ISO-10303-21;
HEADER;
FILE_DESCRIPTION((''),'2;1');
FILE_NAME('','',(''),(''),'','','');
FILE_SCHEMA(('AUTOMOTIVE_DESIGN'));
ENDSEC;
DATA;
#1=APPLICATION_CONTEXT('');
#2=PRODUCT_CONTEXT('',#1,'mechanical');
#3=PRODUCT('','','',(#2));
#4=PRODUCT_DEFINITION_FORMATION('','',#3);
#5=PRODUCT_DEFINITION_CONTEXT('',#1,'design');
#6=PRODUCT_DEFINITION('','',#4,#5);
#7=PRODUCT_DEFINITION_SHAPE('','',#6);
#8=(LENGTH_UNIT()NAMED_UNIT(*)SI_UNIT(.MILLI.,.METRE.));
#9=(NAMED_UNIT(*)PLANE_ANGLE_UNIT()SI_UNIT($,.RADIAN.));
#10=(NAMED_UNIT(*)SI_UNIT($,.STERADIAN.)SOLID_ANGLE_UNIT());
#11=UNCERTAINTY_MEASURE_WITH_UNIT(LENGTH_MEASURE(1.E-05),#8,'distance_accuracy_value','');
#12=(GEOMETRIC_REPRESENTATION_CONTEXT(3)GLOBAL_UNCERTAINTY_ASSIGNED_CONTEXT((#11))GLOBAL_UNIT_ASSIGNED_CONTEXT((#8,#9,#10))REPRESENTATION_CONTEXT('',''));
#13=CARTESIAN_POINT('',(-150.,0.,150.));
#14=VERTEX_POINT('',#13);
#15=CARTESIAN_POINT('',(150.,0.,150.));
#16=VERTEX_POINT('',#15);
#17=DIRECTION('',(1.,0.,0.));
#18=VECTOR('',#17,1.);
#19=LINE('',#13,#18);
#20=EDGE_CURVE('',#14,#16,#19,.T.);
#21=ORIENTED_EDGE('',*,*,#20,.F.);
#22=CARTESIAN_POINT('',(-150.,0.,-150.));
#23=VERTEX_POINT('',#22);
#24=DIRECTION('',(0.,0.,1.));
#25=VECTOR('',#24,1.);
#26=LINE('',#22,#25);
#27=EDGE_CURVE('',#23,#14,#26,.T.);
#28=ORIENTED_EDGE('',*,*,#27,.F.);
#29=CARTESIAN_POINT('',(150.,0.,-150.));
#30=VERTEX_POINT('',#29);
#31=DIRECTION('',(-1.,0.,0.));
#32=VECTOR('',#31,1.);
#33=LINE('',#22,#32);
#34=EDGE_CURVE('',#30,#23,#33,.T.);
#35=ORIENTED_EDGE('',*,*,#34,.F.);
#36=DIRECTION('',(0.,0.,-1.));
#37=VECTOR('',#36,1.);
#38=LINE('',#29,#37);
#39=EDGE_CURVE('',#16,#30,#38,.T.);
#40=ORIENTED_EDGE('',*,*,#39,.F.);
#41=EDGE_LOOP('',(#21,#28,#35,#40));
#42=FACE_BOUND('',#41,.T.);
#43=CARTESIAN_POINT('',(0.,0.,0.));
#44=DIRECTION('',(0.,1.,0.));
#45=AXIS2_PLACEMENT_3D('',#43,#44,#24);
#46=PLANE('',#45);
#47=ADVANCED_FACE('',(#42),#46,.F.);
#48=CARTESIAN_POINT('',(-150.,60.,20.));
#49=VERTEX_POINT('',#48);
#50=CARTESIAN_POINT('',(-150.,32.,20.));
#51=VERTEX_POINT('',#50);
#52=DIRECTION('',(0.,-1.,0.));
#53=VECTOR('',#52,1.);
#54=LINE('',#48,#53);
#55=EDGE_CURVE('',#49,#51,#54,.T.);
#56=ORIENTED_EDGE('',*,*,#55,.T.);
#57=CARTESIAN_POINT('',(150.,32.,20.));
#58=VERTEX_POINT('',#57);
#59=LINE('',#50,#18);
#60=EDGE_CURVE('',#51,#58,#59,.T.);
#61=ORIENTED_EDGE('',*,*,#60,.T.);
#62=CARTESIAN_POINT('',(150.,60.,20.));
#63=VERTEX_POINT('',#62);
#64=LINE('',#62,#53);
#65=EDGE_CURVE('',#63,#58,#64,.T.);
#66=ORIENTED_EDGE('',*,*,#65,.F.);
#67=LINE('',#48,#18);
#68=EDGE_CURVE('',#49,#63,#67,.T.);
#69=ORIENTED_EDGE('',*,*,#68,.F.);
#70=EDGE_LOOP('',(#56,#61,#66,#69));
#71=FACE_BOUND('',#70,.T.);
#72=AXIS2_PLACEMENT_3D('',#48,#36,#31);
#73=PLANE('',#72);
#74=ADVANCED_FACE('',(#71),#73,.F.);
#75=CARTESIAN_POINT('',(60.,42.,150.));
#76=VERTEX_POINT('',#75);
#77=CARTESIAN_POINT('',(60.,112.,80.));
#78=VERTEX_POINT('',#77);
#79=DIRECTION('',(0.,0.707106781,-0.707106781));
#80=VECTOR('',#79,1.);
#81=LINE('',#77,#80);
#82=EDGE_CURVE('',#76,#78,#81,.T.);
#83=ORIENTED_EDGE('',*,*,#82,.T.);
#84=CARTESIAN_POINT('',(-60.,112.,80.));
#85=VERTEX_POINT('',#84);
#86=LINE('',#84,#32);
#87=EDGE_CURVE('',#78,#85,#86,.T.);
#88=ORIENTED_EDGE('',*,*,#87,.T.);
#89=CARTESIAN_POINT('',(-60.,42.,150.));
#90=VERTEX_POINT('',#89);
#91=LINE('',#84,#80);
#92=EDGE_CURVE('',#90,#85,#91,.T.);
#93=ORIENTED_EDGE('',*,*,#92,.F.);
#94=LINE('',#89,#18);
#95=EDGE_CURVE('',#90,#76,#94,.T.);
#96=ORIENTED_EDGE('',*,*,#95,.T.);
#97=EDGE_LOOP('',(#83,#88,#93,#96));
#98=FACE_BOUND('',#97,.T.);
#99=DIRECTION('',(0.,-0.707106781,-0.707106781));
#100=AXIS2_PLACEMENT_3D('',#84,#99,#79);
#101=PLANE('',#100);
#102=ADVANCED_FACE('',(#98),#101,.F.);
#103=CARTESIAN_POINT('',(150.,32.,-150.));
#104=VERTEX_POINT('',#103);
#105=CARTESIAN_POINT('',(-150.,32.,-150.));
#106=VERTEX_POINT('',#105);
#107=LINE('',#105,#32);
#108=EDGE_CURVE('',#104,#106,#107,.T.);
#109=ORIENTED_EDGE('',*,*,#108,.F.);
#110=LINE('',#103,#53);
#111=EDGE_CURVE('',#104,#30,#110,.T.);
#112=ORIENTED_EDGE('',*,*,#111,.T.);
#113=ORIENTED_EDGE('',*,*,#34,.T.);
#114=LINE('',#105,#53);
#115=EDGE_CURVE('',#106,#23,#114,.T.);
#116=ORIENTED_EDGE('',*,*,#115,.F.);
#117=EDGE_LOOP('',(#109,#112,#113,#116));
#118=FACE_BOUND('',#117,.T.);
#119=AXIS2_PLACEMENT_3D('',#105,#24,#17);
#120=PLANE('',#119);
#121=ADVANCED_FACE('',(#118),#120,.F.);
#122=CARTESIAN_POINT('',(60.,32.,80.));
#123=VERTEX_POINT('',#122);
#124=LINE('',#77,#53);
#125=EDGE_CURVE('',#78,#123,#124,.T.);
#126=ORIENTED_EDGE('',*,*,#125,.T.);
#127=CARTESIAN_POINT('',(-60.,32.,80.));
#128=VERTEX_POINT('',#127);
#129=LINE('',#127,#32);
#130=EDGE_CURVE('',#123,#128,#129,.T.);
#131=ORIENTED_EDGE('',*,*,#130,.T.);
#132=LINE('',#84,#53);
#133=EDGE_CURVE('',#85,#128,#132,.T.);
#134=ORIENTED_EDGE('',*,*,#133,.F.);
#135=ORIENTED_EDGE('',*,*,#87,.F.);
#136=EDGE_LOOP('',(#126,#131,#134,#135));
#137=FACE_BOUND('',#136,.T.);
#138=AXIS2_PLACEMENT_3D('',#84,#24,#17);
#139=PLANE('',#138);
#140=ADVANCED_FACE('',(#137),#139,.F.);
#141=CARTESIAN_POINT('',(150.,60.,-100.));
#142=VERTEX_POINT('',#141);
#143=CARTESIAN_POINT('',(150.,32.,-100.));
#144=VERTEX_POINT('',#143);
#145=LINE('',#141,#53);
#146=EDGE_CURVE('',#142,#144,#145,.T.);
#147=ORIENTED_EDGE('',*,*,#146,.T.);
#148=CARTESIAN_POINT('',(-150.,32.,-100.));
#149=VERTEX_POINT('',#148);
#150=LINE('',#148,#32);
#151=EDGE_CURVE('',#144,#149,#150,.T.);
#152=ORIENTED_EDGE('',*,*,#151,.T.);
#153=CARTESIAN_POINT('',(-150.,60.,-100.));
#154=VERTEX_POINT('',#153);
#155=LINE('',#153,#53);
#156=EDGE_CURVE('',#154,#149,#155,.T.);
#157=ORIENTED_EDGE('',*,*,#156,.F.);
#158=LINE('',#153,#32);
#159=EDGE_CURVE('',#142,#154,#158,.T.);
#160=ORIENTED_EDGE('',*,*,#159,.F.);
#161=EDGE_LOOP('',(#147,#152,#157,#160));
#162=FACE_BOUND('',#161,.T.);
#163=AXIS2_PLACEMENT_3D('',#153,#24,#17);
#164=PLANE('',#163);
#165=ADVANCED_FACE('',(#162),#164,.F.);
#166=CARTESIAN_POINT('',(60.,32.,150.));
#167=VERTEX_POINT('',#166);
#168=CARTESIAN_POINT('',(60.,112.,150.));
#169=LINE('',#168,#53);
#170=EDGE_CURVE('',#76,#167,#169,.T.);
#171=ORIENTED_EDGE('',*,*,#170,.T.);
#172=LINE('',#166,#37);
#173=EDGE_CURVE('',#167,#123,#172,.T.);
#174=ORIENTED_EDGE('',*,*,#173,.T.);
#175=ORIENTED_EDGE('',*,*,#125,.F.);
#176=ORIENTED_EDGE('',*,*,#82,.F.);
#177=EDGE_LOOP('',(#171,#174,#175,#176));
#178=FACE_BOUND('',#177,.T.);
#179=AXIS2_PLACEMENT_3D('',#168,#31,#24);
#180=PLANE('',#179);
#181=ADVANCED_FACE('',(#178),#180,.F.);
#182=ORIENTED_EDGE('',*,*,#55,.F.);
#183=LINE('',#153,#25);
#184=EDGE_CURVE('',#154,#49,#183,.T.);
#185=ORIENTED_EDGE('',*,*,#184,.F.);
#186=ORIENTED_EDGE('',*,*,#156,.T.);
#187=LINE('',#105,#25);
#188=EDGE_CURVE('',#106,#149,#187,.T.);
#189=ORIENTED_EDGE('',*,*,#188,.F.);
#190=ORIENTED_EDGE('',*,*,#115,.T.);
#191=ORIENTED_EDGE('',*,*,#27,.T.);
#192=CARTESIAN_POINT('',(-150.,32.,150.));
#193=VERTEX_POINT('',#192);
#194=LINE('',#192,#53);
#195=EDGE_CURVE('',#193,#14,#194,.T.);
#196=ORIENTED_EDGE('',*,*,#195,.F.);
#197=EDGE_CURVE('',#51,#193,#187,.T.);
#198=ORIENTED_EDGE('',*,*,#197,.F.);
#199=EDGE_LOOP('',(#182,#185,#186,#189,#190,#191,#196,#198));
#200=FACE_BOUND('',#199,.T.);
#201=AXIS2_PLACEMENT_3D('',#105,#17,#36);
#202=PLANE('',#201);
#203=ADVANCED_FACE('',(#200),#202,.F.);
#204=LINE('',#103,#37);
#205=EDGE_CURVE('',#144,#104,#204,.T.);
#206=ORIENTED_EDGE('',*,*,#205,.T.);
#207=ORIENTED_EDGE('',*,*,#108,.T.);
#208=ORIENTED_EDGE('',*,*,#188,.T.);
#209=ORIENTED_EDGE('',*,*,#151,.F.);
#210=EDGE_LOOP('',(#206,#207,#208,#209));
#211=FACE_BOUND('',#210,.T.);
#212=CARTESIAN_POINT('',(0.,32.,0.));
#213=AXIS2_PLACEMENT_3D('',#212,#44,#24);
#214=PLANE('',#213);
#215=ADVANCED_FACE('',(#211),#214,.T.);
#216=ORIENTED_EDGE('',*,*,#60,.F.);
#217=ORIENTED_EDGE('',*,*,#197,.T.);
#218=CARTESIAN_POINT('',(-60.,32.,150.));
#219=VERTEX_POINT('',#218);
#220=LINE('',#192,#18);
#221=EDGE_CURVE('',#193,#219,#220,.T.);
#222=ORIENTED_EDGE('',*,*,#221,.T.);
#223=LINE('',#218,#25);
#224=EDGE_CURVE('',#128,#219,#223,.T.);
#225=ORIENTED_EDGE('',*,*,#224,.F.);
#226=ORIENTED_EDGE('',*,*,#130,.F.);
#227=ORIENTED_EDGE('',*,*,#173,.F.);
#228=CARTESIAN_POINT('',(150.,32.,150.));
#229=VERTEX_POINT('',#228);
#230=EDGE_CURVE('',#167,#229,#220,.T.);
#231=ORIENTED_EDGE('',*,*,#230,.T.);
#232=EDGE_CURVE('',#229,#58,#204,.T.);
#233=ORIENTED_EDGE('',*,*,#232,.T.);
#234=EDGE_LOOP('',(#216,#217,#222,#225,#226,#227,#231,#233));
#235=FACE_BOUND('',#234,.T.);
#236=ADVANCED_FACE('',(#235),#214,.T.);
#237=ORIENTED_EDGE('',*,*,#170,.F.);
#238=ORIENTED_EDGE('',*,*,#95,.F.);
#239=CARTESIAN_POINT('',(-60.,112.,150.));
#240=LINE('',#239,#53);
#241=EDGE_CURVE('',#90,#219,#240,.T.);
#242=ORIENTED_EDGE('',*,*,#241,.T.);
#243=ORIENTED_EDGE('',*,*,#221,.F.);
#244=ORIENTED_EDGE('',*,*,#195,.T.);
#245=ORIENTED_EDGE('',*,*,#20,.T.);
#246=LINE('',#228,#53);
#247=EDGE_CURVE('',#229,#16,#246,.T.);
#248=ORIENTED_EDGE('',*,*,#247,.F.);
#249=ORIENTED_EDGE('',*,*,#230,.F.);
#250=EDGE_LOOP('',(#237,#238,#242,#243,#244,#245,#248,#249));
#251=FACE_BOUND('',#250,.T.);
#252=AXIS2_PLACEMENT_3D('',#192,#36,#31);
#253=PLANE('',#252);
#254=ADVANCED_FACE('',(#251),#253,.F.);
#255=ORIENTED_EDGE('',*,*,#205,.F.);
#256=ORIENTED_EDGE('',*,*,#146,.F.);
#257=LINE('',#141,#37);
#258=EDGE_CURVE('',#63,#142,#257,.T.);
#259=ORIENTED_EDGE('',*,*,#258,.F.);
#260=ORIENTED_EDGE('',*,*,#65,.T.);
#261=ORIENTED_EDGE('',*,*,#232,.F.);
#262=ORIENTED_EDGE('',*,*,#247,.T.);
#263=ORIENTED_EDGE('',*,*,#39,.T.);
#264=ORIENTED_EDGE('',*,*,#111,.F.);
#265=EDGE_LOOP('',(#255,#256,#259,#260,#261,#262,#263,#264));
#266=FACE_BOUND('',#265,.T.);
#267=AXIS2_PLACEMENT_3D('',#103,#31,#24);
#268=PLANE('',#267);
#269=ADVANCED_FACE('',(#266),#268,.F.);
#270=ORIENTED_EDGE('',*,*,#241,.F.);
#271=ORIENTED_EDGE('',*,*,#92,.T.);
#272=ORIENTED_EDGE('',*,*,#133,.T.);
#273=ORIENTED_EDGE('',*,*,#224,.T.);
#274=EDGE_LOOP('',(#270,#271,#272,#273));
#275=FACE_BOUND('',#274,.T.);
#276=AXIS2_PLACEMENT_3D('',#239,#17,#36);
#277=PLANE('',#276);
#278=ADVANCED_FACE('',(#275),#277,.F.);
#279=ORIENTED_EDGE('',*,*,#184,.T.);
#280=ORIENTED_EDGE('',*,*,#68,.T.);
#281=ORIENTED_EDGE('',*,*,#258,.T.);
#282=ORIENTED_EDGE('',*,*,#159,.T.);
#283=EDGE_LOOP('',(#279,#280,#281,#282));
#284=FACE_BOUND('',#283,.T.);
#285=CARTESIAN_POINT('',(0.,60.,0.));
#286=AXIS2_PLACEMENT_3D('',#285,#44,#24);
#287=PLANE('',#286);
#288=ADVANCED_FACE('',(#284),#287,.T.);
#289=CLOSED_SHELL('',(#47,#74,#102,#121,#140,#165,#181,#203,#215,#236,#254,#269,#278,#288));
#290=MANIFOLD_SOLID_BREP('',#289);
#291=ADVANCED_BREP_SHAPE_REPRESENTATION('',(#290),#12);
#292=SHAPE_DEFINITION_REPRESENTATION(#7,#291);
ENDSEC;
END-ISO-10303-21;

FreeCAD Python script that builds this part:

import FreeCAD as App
import Part
import Sketcher


def add_polygon(sketch, points):
    """Adds a closed chain of lines whose ends are joined by coincident constraints."""
    first, n = sketch.GeometryCount, len(points)
    for a, b in zip(points, points[1:] + points[:1]):
        sketch.addGeometry(Part.LineSegment(App.Vector(*a, 0), App.Vector(*b, 0)), False)
    for i in range(n):
        sketch.addConstraint(Sketcher.Constraint("Coincident", first + i, 2, first + (i + 1) % n, 1))

doc = App.newDocument("Part")
params = doc.addObject("Spreadsheet::Sheet", "Params")
for row, (alias, value) in enumerate([
    ("sketch1_width", "300 mm"),
    ("pad1_length", "32 mm"),
    ("sketch2_width", "300 mm"),
    ("sketch2_height", "120 mm"),
    ("pad2_length", "28 mm"),
    ("sketch3_width", "120 mm"),
    ("sketch3_height", "70 mm"),
    ("pad3_length", "80 mm"),
    ("sketch4_width", "70 mm"),
    ("pocket1_length", "120 mm"),
], start=1):
    params.set(f"A{row}", alias)
    params.set(f"B{row}", "=" + value)
    params.setAlias(f"B{row}", alias)

body = doc.addObject("PartDesign::Body", "Body")

sketch1 = body.newObject("Sketcher::SketchObject", "Sketch")
sketch1.AttachmentSupport = (doc.getObject("XZ_Plane"), [""])
sketch1.MapMode = "FlatFace"
add_polygon(sketch1, [(-150, -150), (-150, 150), (150, 150), (150, -150)])
sketch1.addConstraint([
    Sketcher.Constraint("Vertical", 0),
    Sketcher.Constraint("Horizontal", 1),
    Sketcher.Constraint("Vertical", 2),
    Sketcher.Constraint("Horizontal", 3),
    Sketcher.Constraint("Symmetric", 0, 2, 2, 2, -1, 1),
    Sketcher.Constraint("Equal", 3, 0),
    Sketcher.Constraint("DistanceX", 1, 1, 1, 2, 300.0),
])
sketch1.setExpression("Constraints[10]", "Params.sketch1_width")
pad1 = body.newObject("PartDesign::Pad", "Pad")
pad1.Profile = sketch1
pad1.setExpression("Length", "Params.pad1_length")
pad1.Reversed = True

sketch2 = body.newObject("Sketcher::SketchObject", "Sketch001")
sketch2.AttachmentSupport = (doc.getObject("XZ_Plane"), [""])
sketch2.MapMode = "FlatFace"
sketch2.AttachmentOffset = App.Placement(App.Vector(0, 0, -32), App.Rotation())
add_polygon(sketch2, [(-150, -100), (-150, 20), (150, 20), (150, -100)])
sketch2.addConstraint([
    Sketcher.Constraint("Vertical", 0),
    Sketcher.Constraint("Horizontal", 1),
    Sketcher.Constraint("Vertical", 2),
    Sketcher.Constraint("Horizontal", 3),
    Sketcher.Constraint("DistanceX", 1, 1, 1, 2, 300.0),
    Sketcher.Constraint("DistanceY", 0, 1, 0, 2, 120.0),
    Sketcher.Constraint("DistanceX", 0, 2, -1, 1, 150.0),
    Sketcher.Constraint("DistanceY", -1, 1, 0, 2, 20.0),
])
sketch2.setExpression("Constraints[8]", "Params.sketch2_width")
sketch2.setExpression("Constraints[9]", "Params.sketch2_height")
pad2 = body.newObject("PartDesign::Pad", "Pad001")
pad2.Profile = sketch2
pad2.setExpression("Length", "Params.pad2_length")
pad2.Reversed = True

sketch3 = body.newObject("Sketcher::SketchObject", "Sketch002")
sketch3.AttachmentSupport = (doc.getObject("XZ_Plane"), [""])
sketch3.MapMode = "FlatFace"
sketch3.AttachmentOffset = App.Placement(App.Vector(0, 0, -32), App.Rotation())
add_polygon(sketch3, [(-60, 80), (-60, 150), (60, 150), (60, 80)])
sketch3.addConstraint([
    Sketcher.Constraint("Vertical", 0),
    Sketcher.Constraint("Horizontal", 1),
    Sketcher.Constraint("Vertical", 2),
    Sketcher.Constraint("Horizontal", 3),
    Sketcher.Constraint("DistanceX", 1, 1, 1, 2, 120.0),
    Sketcher.Constraint("DistanceY", 0, 1, 0, 2, 70.0),
    Sketcher.Constraint("DistanceX", 0, 2, -1, 1, 60.0),
    Sketcher.Constraint("DistanceY", -1, 1, 0, 2, 150.0),
])
sketch3.setExpression("Constraints[8]", "Params.sketch3_width")
sketch3.setExpression("Constraints[9]", "Params.sketch3_height")
pad3 = body.newObject("PartDesign::Pad", "Pad002")
pad3.Profile = sketch3
pad3.setExpression("Length", "Params.pad3_length")
pad3.Reversed = True

sketch4 = body.newObject("Sketcher::SketchObject", "Sketch003")
sketch4.AttachmentSupport = (doc.getObject("YZ_Plane"), [""])
sketch4.MapMode = "FlatFace"
sketch4.AttachmentOffset = App.Placement(App.Vector(0, 0, 60), App.Rotation())
add_polygon(sketch4, [(42, 150), (112, 80), (112, 150)])
sketch4.addConstraint([
    Sketcher.Constraint("Vertical", 1),
    Sketcher.Constraint("Horizontal", 2),
    Sketcher.Constraint("Equal", 2, 1),
    Sketcher.Constraint("DistanceX", 2, 2, 2, 1, 70.0),
    Sketcher.Constraint("DistanceX", -1, 1, 0, 2, 112.0),
    Sketcher.Constraint("DistanceY", -1, 1, 0, 2, 80.0),
])
sketch4.setExpression("Constraints[6]", "Params.sketch4_width")
pocket1 = body.newObject("PartDesign::Pocket", "Pocket")
pocket1.Profile = sketch4
pocket1.setExpression("Length", "Params.pocket1_length")

doc.recompute()
